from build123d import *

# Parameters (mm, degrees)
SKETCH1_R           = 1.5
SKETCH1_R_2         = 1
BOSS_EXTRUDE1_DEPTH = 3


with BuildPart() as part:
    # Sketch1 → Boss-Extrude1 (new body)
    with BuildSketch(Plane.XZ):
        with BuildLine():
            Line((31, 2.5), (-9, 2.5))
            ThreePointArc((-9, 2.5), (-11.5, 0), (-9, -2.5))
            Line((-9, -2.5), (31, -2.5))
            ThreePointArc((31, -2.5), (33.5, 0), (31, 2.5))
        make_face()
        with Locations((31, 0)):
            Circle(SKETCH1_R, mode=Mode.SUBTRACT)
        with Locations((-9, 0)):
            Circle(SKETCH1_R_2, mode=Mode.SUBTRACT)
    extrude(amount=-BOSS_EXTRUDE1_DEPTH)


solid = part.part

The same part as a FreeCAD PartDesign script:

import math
import FreeCAD as App
import Part
import Sketcher

doc = App.newDocument("Part")
body = doc.addObject("PartDesign::Body", "Body")

# Sketch on XZ plane
sketch1 = body.newObject("Sketcher::SketchObject", "Sketch")
sketch1.AttachmentSupport = (doc.getObject("XZ_Plane"), [""])
sketch1.MapMode = "FlatFace"
sketch1.addGeometry([
    Part.LineSegment(App.Vector(31, 2.5, 0), App.Vector(-9, 2.5, 0)),  # 0
    Part.ArcOfCircle(Part.Circle(App.Vector(-9, 0, 0), App.Vector(0, 0, 1), 2.5), math.radians(90), math.radians(270)),  # 1
    Part.LineSegment(App.Vector(-9, -2.5, 0), App.Vector(31, -2.5, 0)),  # 2
    Part.ArcOfCircle(Part.Circle(App.Vector(31, 0, 0), App.Vector(0, 0, 1), 2.5), math.radians(-90), math.radians(90)),  # 3
    Part.Circle(App.Vector(-9, 0, 0), App.Vector(0, 0, 1), 1),  # 4
    Part.Circle(App.Vector(31, 0, 0), App.Vector(0, 0, 1), 1.5),  # 5
], False)
sketch1.addConstraint([
    Sketcher.Constraint("Tangent", 0, 2, 1, 1),
    Sketcher.Constraint("Tangent", 1, 2, 2, 1),
    Sketcher.Constraint("Tangent", 2, 2, 3, 1),
    Sketcher.Constraint("Tangent", 3, 2, 0, 1),
    Sketcher.Constraint("Horizontal", 0),
    Sketcher.Constraint("Horizontal", 2),
    Sketcher.Constraint("Coincident", 4, 3, 1, 3),
    Sketcher.Constraint("Coincident", 5, 3, 3, 3),
    Sketcher.Constraint("PointOnObject", 1, 3, -1),
    Sketcher.Constraint("Diameter", 4, 2.0),
    Sketcher.Constraint("Diameter", 5, 3.0),
    Sketcher.Constraint("Radius", 1, 2.5),
    Sketcher.Constraint("DistanceX", 0, 2, 0, 1, 40.0),
    Sketcher.Constraint("DistanceX", 1, 3, -1, 1, 9.0),
])
pad1 = body.newObject("PartDesign::Pad", "Pad")
pad1.Profile = sketch1
pad1.Length = 3
pad1.Reversed = True

doc.recompute()
